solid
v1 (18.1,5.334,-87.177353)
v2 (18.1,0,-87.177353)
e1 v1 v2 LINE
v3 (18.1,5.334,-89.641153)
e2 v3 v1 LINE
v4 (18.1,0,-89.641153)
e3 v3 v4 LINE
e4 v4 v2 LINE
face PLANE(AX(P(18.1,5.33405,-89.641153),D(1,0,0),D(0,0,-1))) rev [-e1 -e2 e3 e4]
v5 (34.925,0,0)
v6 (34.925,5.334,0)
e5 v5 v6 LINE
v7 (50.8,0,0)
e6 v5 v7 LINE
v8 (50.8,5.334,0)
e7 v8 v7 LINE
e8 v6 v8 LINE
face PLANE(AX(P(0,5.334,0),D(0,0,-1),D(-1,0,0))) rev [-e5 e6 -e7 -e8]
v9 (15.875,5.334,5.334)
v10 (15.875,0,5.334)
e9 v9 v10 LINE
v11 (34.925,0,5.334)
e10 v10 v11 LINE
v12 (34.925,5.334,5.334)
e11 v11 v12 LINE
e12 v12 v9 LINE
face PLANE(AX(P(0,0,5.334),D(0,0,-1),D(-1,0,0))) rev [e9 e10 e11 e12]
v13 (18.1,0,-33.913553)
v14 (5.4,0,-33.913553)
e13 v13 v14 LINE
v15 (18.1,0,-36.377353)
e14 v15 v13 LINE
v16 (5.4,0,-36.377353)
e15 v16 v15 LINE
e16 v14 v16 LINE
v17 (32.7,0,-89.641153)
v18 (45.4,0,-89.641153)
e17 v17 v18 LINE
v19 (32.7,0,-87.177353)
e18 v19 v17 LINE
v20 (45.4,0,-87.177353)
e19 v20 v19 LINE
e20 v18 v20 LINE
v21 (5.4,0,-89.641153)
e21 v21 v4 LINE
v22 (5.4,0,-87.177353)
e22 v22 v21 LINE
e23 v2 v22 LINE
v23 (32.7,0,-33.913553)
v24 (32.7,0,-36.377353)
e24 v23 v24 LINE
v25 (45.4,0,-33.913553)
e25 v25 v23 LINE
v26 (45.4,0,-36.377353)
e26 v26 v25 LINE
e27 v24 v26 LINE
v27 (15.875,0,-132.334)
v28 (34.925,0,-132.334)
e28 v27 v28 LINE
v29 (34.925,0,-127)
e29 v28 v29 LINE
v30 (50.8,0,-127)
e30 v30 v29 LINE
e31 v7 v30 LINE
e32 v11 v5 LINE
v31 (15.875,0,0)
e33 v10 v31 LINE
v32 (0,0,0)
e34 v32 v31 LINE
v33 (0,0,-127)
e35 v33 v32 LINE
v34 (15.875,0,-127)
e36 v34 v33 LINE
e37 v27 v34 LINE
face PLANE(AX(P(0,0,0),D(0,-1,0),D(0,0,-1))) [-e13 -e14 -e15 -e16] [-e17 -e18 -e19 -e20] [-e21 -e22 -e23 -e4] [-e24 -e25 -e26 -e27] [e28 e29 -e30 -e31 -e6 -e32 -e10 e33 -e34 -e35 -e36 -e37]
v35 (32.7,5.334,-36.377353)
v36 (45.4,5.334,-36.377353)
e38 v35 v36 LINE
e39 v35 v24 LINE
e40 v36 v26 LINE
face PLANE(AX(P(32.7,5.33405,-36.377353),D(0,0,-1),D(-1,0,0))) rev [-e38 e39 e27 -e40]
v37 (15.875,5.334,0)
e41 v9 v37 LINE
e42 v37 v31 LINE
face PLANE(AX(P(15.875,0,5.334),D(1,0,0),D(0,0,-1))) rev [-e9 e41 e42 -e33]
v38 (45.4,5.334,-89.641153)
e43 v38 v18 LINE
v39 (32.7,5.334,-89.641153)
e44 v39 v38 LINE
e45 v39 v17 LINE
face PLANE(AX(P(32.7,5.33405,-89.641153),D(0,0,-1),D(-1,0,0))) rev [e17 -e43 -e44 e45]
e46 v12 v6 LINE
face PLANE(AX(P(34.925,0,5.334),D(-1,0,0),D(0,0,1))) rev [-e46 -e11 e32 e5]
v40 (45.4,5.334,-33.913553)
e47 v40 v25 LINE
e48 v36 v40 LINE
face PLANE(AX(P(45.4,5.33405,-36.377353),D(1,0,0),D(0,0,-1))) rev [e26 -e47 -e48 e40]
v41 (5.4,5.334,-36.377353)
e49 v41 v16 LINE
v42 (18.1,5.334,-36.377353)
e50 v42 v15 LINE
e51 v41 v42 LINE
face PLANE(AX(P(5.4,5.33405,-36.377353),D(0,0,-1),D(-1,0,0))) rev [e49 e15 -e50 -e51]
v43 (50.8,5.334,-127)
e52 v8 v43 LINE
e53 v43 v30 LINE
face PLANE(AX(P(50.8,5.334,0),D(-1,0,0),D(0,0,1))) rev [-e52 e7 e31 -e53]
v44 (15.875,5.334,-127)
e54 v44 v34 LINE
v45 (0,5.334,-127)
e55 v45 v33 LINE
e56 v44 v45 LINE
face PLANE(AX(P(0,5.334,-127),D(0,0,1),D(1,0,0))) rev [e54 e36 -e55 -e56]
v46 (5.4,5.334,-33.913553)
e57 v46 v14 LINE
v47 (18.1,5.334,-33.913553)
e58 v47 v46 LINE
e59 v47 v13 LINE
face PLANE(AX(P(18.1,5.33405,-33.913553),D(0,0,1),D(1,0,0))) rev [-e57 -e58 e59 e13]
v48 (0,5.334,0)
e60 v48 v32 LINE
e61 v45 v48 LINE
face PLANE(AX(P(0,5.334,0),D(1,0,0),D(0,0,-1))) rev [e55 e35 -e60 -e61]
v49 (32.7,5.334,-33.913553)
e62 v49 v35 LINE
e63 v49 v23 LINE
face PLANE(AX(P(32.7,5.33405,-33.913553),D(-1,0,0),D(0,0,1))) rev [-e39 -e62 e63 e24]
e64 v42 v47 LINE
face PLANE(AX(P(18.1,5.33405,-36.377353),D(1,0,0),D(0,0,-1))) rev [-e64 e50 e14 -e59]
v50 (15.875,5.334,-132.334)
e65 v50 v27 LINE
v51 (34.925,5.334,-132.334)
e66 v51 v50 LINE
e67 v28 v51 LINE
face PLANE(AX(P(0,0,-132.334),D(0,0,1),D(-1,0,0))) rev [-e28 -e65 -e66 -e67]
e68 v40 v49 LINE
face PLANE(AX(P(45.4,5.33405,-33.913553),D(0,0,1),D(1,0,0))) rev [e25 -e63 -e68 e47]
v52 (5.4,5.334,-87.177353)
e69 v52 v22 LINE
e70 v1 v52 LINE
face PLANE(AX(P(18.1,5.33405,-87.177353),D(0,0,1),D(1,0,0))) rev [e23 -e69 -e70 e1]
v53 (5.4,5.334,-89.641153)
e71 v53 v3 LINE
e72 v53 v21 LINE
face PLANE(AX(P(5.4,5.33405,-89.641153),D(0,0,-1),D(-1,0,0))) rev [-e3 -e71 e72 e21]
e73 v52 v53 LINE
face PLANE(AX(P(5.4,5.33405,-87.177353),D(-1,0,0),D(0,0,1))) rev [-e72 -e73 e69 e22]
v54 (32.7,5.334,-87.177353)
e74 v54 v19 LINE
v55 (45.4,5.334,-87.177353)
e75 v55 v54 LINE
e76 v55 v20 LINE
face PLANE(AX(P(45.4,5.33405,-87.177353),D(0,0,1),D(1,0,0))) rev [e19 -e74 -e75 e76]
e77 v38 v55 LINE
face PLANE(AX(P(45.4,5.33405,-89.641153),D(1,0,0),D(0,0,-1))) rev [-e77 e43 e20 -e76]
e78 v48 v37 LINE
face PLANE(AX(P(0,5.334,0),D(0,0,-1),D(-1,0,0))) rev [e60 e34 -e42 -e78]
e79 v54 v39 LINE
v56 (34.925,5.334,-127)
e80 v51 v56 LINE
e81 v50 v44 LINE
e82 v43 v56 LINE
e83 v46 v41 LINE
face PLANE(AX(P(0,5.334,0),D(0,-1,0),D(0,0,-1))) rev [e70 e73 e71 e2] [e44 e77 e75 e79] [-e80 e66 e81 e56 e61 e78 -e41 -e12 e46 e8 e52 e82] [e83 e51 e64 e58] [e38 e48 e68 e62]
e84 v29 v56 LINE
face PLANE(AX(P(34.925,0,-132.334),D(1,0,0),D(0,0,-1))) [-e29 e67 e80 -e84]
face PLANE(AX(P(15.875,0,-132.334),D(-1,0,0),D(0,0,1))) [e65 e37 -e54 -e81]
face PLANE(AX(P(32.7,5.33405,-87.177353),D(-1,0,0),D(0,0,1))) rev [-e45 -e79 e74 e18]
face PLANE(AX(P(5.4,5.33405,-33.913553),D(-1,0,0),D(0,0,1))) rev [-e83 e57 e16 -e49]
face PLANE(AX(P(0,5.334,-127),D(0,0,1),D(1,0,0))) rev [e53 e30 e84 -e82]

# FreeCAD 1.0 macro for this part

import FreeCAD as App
import Part
import Sketcher
Q = App.Units.Quantity

doc = App.newDocument("Part")
body = doc.addObject("PartDesign::Body", "Body")

sketch1 = body.newObject("Sketcher::SketchObject", "Sketch")
sketch1.AttachmentSupport = (doc.getObject("XZ_Plane"), [""])
sketch1.MapMode = "FlatFace"
sketch1.addGeometry(Part.LineSegment(App.Vector(0, -127, 0), App.Vector(0, 0, 0)), False)
sketch1.addGeometry(Part.LineSegment(App.Vector(0, 0, 0), App.Vector(50.8, 0, 0)), False)
sketch1.addGeometry(Part.LineSegment(App.Vector(50.8, 0, 0), App.Vector(50.8, -127, 0)), False)
sketch1.addGeometry(Part.LineSegment(App.Vector(50.8, -127, 0), App.Vector(0, -127, 0)), False)
sketch1.addConstraint(Sketcher.Constraint("Coincident", 0, 2, 1, 1))
sketch1.addConstraint(Sketcher.Constraint("Coincident", 1, 2, 2, 1))
sketch1.addConstraint(Sketcher.Constraint("Coincident", 2, 2, 3, 1))
sketch1.addConstraint(Sketcher.Constraint("Coincident", 3, 2, 0, 1))
sketch1.addConstraint(Sketcher.Constraint("Vertical", 0))
sketch1.addConstraint(Sketcher.Constraint("Horizontal", 1))
sketch1.addConstraint(Sketcher.Constraint("Vertical", 2))
sketch1.addConstraint(Sketcher.Constraint("Horizontal", 3))
sketch1.addConstraint(Sketcher.Constraint("Coincident", 0, 2, -1, 1))
sketch1.addConstraint(Sketcher.Constraint("DistanceX", 1, 1, 1, 2, Q("2 in")))
sketch1.addConstraint(Sketcher.Constraint("DistanceY", 0, 1, 0, 2, Q("5 in")))
pad1 = body.newObject("PartDesign::Pad", "Pad")
pad1.Profile = sketch1
pad1.Length = Q("0.21 in")
pad1.Reversed = True

sketch2 = body.newObject("Sketcher::SketchObject", "Sketch001")
sketch2.AttachmentSupport = (doc.getObject("XY_Plane"), [""])
sketch2.MapMode = "FlatFace"
sketch2.addGeometry(Part.LineSegment(App.Vector(15.875, 5.334, 0), App.Vector(15.875, 0, 0)), False)
sketch2.addGeometry(Part.LineSegment(App.Vector(15.875, 0, 0), App.Vector(34.925, 0, 0)), False)
sketch2.addGeometry(Part.LineSegment(App.Vector(34.925, 0, 0), App.Vector(34.925, 5.334, 0)), False)
sketch2.addGeometry(Part.LineSegment(App.Vector(34.925, 5.334, 0), App.Vector(15.875, 5.334, 0)), False)
sketch2.addConstraint(Sketcher.Constraint("Coincident", 0, 2, 1, 1))
sketch2.addConstraint(Sketcher.Constraint("Coincident", 1, 2, 2, 1))
sketch2.addConstraint(Sketcher.Constraint("Coincident", 2, 2, 3, 1))
sketch2.addConstraint(Sketcher.Constraint("Coincident", 3, 2, 0, 1))
sketch2.addConstraint(Sketcher.Constraint("Vertical", 0))
sketch2.addConstraint(Sketcher.Constraint("Horizontal", 1))
sketch2.addConstraint(Sketcher.Constraint("Vertical", 2))
sketch2.addConstraint(Sketcher.Constraint("Horizontal", 3))
sketch2.addConstraint(Sketcher.Constraint("PointOnObject", 0, 2, -1))
sketch2.addConstraint(Sketcher.Constraint("DistanceX", 1, 1, 1, 2, Q("0.75 in")))
sketch2.addConstraint(Sketcher.Constraint("DistanceY", 0, 2, 0, 1, Q("0.21 in")))
sketch2.addConstraint(Sketcher.Constraint("DistanceX", -1, 1, 0, 2, Q("0.625 in")))
pad2 = body.newObject("PartDesign::Pad", "Pad001")
pad2.Profile = sketch2
pad2.Length = Q("0.21 in")
doc.recompute()

datumplane = body.newObject("PartDesign::Plane", "DatumPlane")
datumplane.AttachmentSupport = (doc.getObject("XY_Plane"), [""])
datumplane.MapMode = "FlatFace"
datumplane.AttachmentOffset = App.Placement(App.Vector(0, 0, -2.5 * 25.4), App.Rotation())
mirrored = body.newObject("PartDesign::Mirrored", "Mirrored")
mirrored.Originals = [pad2]
mirrored.MirrorPlane = (datumplane, [""])
body.Tip = mirrored

sketch3 = body.newObject("Sketcher::SketchObject", "Sketch002")
sketch3.AttachmentSupport = (doc.getObject("XZ_Plane"), [""])
sketch3.MapMode = "FlatFace"
sketch3.addGeometry(Part.LineSegment(App.Vector(5.4, -33.913553, 0), App.Vector(5.4, -36.377353, 0)), False)
sketch3.addGeometry(Part.LineSegment(App.Vector(5.4, -36.377353, 0), App.Vector(18.1, -36.377353, 0)), False)
sketch3.addGeometry(Part.LineSegment(App.Vector(18.1, -36.377353, 0), App.Vector(18.1, -33.913553, 0)), False)
sketch3.addGeometry(Part.LineSegment(App.Vector(18.1, -33.913553, 0), App.Vector(5.4, -33.913553, 0)), False)
sketch3.addGeometry(Part.LineSegment(App.Vector(32.7, -33.913553, 0), App.Vector(32.7, -36.377353, 0)), False)
sketch3.addGeometry(Part.LineSegment(App.Vector(32.7, -36.377353, 0), App.Vector(45.4, -36.377353, 0)), False)
sketch3.addGeometry(Part.LineSegment(App.Vector(45.4, -36.377353, 0), App.Vector(45.4, -33.913553, 0)), False)
sketch3.addGeometry(Part.LineSegment(App.Vector(45.4, -33.913553, 0), App.Vector(32.7, -33.913553, 0)), False)
sketch3.addGeometry(Part.LineSegment(App.Vector(5.4, -87.177353, 0), App.Vector(5.4, -89.641153, 0)), False)
sketch3.addGeometry(Part.LineSegment(App.Vector(5.4, -89.641153, 0), App.Vector(18.1, -89.641153, 0)), False)
sketch3.addGeometry(Part.LineSegment(App.Vector(18.1, -89.641153, 0), App.Vector(18.1, -87.177353, 0)), False)
sketch3.addGeometry(Part.LineSegment(App.Vector(18.1, -87.177353, 0), App.Vector(5.4, -87.177353, 0)), False)
sketch3.addGeometry(Part.LineSegment(App.Vector(32.7, -87.177353, 0), App.Vector(32.7, -89.641153, 0)), False)
sketch3.addGeometry(Part.LineSegment(App.Vector(32.7, -89.641153, 0), App.Vector(45.4, -89.641153, 0)), False)
sketch3.addGeometry(Part.LineSegment(App.Vector(45.4, -89.641153, 0), App.Vector(45.4, -87.177353, 0)), False)
sketch3.addGeometry(Part.LineSegment(App.Vector(45.4, -87.177353, 0), App.Vector(32.7, -87.177353, 0)), False)
sketch3.addConstraint(Sketcher.Constraint("Coincident", 0, 2, 1, 1))
sketch3.addConstraint(Sketcher.Constraint("Coincident", 1, 2, 2, 1))
sketch3.addConstraint(Sketcher.Constraint("Coincident", 2, 2, 3, 1))
sketch3.addConstraint(Sketcher.Constraint("Coincident", 3, 2, 0, 1))
sketch3.addConstraint(Sketcher.Constraint("Coincident", 4, 2, 5, 1))
sketch3.addConstraint(Sketcher.Constraint("Coincident", 5, 2, 6, 1))
sketch3.addConstraint(Sketcher.Constraint("Coincident", 6, 2, 7, 1))
sketch3.addConstraint(Sketcher.Constraint("Coincident", 7, 2, 4, 1))
sketch3.addConstraint(Sketcher.Constraint("Coincident", 8, 2, 9, 1))
sketch3.addConstraint(Sketcher.Constraint("Coincident", 9, 2, 10, 1))
sketch3.addConstraint(Sketcher.Constraint("Coincident", 10, 2, 11, 1))
sketch3.addConstraint(Sketcher.Constraint("Coincident", 11, 2, 8, 1))
sketch3.addConstraint(Sketcher.Constraint("Coincident", 12, 2, 13, 1))
sketch3.addConstraint(Sketcher.Constraint("Coincident", 13, 2, 14, 1))
sketch3.addConstraint(Sketcher.Constraint("Coincident", 14, 2, 15, 1))
sketch3.addConstraint(Sketcher.Constraint("Coincident", 15, 2, 12, 1))
sketch3.addConstraint(Sketcher.Constraint("Vertical", 0))
sketch3.addConstraint(Sketcher.Constraint("Horizontal", 1))
sketch3.addConstraint(Sketcher.Constraint("Vertical", 2))
sketch3.addConstraint(Sketcher.Constraint("Horizontal", 3))
sketch3.addConstraint(Sketcher.Constraint("Vertical", 4))
sketch3.addConstraint(Sketcher.Constraint("Horizontal", 5))
sketch3.addConstraint(Sketcher.Constraint("Vertical", 6))
sketch3.addConstraint(Sketcher.Constraint("Horizontal", 7))
sketch3.addConstraint(Sketcher.Constraint("Vertical", 8))
sketch3.addConstraint(Sketcher.Constraint("Horizontal", 9))
sketch3.addConstraint(Sketcher.Constraint("Vertical", 10))
sketch3.addConstraint(Sketcher.Constraint("Horizontal", 11))
sketch3.addConstraint(Sketcher.Constraint("Vertical", 12))
sketch3.addConstraint(Sketcher.Constraint("Horizontal", 13))
sketch3.addConstraint(Sketcher.Constraint("Vertical", 14))
sketch3.addConstraint(Sketcher.Constraint("Horizontal", 15))
sketch3.addConstraint(Sketcher.Constraint("Horizontal", 1, 2, 4, 2))
sketch3.addConstraint(Sketcher.Constraint("Horizontal", 3, 2, 6, 2))
sketch3.addConstraint(Sketcher.Constraint("Horizontal", 9, 2, 12, 2))
sketch3.addConstraint(Sketcher.Constraint("Horizontal", 11, 2, 14, 2))
sketch3.addConstraint(Sketcher.Constraint("Vertical", 3, 2, 8, 2))
sketch3.addConstraint(Sketcher.Constraint("Vertical", 2, 2, 9, 2))
sketch3.addConstraint(Sketcher.Constraint("Vertical", 7, 2, 12, 2))
sketch3.addConstraint(Sketcher.Constraint("Vertical", 6, 2, 13, 2))
sketch3.addConstraint(Sketcher.Constraint("Equal", 3, 5))
sketch3.addConstraint(Sketcher.Constraint("Equal", 6, 8))
sketch3.addConstraint(Sketcher.Constraint("DistanceX", 1, 1, 1, 2, Q("0.5 in")))
sketch3.addConstraint(Sketcher.Constraint("DistanceY", 10, 2, 1, 2, Q("2 in")))
sketch3.addConstraint(Sketcher.Constraint("DistanceY", 0, 2, 0, 1, Q("0.097 in")))
sketch3.addConstraint(Sketcher.Constraint("DistanceX", -1, 1, 0, 2, Q("5.4 mm")))
sketch3.addConstraint(Sketcher.Constraint("DistanceX", -1, 1, 4, 2, Q("32.7 mm")))
sketch3.addConstraint(Sketcher.Constraint("DistanceY", 0, 2, -1, 1, Q("36.377353 mm")))
pocket1 = body.newObject("PartDesign::Pocket", "Pocket")
pocket1.Profile = sketch3
pocket1.Type = "ThroughAll"

doc.recompute()
